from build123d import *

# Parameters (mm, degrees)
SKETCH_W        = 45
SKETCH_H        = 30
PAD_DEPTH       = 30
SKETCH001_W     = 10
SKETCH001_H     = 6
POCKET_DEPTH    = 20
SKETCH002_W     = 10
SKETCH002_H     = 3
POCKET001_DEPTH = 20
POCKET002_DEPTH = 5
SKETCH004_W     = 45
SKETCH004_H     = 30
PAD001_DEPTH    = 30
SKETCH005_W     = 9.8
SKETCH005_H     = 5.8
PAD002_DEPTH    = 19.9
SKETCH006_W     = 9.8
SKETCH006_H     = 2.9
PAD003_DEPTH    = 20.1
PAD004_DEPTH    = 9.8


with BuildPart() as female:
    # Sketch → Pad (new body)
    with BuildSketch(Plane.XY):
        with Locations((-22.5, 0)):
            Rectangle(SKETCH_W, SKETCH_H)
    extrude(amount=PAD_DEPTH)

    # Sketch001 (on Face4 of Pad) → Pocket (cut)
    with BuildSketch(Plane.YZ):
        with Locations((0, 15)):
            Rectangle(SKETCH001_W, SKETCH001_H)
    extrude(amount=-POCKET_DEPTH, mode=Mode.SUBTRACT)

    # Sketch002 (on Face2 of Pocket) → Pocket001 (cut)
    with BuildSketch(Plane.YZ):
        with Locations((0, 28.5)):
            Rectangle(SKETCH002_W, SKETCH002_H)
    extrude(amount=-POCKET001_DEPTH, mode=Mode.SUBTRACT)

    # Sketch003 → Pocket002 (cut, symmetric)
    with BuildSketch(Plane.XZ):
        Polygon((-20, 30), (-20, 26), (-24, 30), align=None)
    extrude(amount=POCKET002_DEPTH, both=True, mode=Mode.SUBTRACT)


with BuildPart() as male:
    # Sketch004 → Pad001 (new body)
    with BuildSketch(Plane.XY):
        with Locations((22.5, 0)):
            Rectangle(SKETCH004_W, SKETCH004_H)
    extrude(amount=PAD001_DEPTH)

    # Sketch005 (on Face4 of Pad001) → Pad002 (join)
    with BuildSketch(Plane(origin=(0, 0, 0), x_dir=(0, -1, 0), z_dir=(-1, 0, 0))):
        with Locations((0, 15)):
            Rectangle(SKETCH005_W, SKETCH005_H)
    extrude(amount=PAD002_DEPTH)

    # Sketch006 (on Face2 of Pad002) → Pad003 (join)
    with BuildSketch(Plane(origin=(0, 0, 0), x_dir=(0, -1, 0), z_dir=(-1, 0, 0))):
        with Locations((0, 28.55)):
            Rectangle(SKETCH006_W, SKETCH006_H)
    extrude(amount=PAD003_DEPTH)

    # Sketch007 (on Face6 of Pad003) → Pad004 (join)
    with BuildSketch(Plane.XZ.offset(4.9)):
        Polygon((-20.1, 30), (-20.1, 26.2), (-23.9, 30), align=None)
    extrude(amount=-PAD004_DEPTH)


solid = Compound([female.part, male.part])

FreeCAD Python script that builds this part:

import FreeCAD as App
import Part
import Sketcher
from FreeCAD import Vector

doc = App.newDocument("Part")
body = doc.addObject("PartDesign::Body", "Body")

# Sketch on XY plane
sketch1 = doc.addObject("Sketcher::SketchObject", "Sketch")
body.addObject(sketch1)
sketch1.AttachmentSupport = (doc.XY_Plane, [""])
sketch1.MapMode = "FlatFace"
sketch1.addGeometry([
    Part.LineSegment(Vector(-45, 15, 0), Vector(-45, -15, 0)),
    Part.LineSegment(Vector(-45, -15, 0), Vector(0, -15, 0)),
    Part.LineSegment(Vector(0, -15, 0), Vector(0, 15, 0)),
    Part.LineSegment(Vector(0, 15, 0), Vector(-45, 15, 0)),
], False)
sketch1.addConstraint([
    Sketcher.Constraint("Coincident", 0, 2, 1, 1),
    Sketcher.Constraint("Coincident", 1, 2, 2, 1),
    Sketcher.Constraint("Coincident", 2, 2, 3, 1),
    Sketcher.Constraint("Coincident", 3, 2, 0, 1),
    Sketcher.Constraint("Vertical", 0),
    Sketcher.Constraint("Horizontal", 1),
    Sketcher.Constraint("Vertical", 2),
    Sketcher.Constraint("Horizontal", 3),
    Sketcher.Constraint("Symmetric", 1, 2, 2, 2, -1, 1),
    Sketcher.Constraint("DistanceX", 1, 1, 1, 2, 45.0),
    Sketcher.Constraint("DistanceY", 0, 2, 0, 1, 30.0),
])
pad1 = doc.addObject("PartDesign::Pad", "Pad")
body.addObject(pad1)
pad1.Profile = sketch1
pad1.Length = 30

# Sketch on YZ plane
sketch2 = doc.addObject("Sketcher::SketchObject", "Sketch001")
body.addObject(sketch2)
sketch2.AttachmentSupport = (doc.YZ_Plane, [""])
sketch2.MapMode = "FlatFace"
sketch2.addGeometry([
    Part.LineSegment(Vector(-5, 18, 0), Vector(-5, 12, 0)),
    Part.LineSegment(Vector(-5, 12, 0), Vector(5, 12, 0)),
    Part.LineSegment(Vector(5, 12, 0), Vector(5, 18, 0)),
    Part.LineSegment(Vector(5, 18, 0), Vector(-5, 18, 0)),
], False)
sketch2.addConstraint([
    Sketcher.Constraint("Coincident", 0, 2, 1, 1),
    Sketcher.Constraint("Coincident", 1, 2, 2, 1),
    Sketcher.Constraint("Coincident", 2, 2, 3, 1),
    Sketcher.Constraint("Coincident", 3, 2, 0, 1),
    Sketcher.Constraint("Vertical", 0),
    Sketcher.Constraint("Horizontal", 1),
    Sketcher.Constraint("Vertical", 2),
    Sketcher.Constraint("Horizontal", 3),
    Sketcher.Constraint("DistanceX", 1, 1, 1, 2, 10.0),
    Sketcher.Constraint("DistanceY", 0, 2, 0, 1, 6.0),
    Sketcher.Constraint("DistanceX", 0, 2, -1, 1, 5.0),
    Sketcher.Constraint("DistanceY", -1, 1, 0, 2, 12.0),
])
pocket1 = doc.addObject("PartDesign::Pocket", "Pocket")
body.addObject(pocket1)
pocket1.Profile = sketch2
pocket1.Length = 20

# Sketch on YZ plane
sketch3 = doc.addObject("Sketcher::SketchObject", "Sketch002")
body.addObject(sketch3)
sketch3.AttachmentSupport = (doc.YZ_Plane, [""])
sketch3.MapMode = "FlatFace"
sketch3.addGeometry([
    Part.LineSegment(Vector(-5, 30, 0), Vector(-5, 27, 0)),
    Part.LineSegment(Vector(-5, 27, 0), Vector(5, 27, 0)),
    Part.LineSegment(Vector(5, 27, 0), Vector(5, 30, 0)),
    Part.LineSegment(Vector(5, 30, 0), Vector(-5, 30, 0)),
], False)
sketch3.addConstraint([
    Sketcher.Constraint("Coincident", 0, 2, 1, 1),
    Sketcher.Constraint("Coincident", 1, 2, 2, 1),
    Sketcher.Constraint("Coincident", 2, 2, 3, 1),
    Sketcher.Constraint("Coincident", 3, 2, 0, 1),
    Sketcher.Constraint("Vertical", 0),
    Sketcher.Constraint("Horizontal", 1),
    Sketcher.Constraint("Vertical", 2),
    Sketcher.Constraint("Horizontal", 3),
    Sketcher.Constraint("DistanceX", 1, 1, 1, 2, 10.0),
    Sketcher.Constraint("DistanceY", 0, 2, 0, 1, 3.0),
    Sketcher.Constraint("DistanceX", 0, 2, -1, 1, 5.0),
    Sketcher.Constraint("DistanceY", -1, 1, 0, 2, 27.0),
])
pocket2 = doc.addObject("PartDesign::Pocket", "Pocket001")
body.addObject(pocket2)
pocket2.Profile = sketch3
pocket2.Length = 20

# Sketch on XZ plane
sketch4 = doc.addObject("Sketcher::SketchObject", "Sketch003")
body.addObject(sketch4)
sketch4.AttachmentSupport = (doc.XZ_Plane, [""])
sketch4.MapMode = "FlatFace"
sketch4.addGeometry([
    Part.LineSegment(Vector(-20, 26, 0), Vector(-20, 30, 0)),
    Part.LineSegment(Vector(-20, 30, 0), Vector(-24, 30, 0)),
    Part.LineSegment(Vector(-24, 30, 0), Vector(-20, 26, 0)),
], False)
sketch4.addConstraint([
    Sketcher.Constraint("Coincident", 0, 2, 1, 1),
    Sketcher.Constraint("Coincident", 1, 2, 2, 1),
    Sketcher.Constraint("Coincident", 2, 2, 0, 1),
    Sketcher.Constraint("Vertical", 0),
    Sketcher.Constraint("Horizontal", 1),
    Sketcher.Constraint("Equal", 1, 0),
    Sketcher.Constraint("DistanceX", 1, 2, 1, 1, 4.0),
    Sketcher.Constraint("DistanceX", 0, 2, -1, 1, 20.0),
    Sketcher.Constraint("DistanceY", -1, 1, 0, 2, 30.0),
])
pocket3 = doc.addObject("PartDesign::Pocket", "Pocket002")
body.addObject(pocket3)
pocket3.Profile = sketch4
pocket3.Length = 10
pocket3.Midplane = True
body2 = doc.addObject("PartDesign::Body", "Body001")

# Sketch on XY plane
sketch5 = doc.addObject("Sketcher::SketchObject", "Sketch004")
body2.addObject(sketch5)
sketch5.AttachmentSupport = (doc.getObject("XY_Plane001"), [""])
sketch5.MapMode = "FlatFace"
sketch5.addGeometry([
    Part.LineSegment(Vector(0, 15, 0), Vector(0, -15, 0)),
    Part.LineSegment(Vector(0, -15, 0), Vector(45, -15, 0)),
    Part.LineSegment(Vector(45, -15, 0), Vector(45, 15, 0)),
    Part.LineSegment(Vector(45, 15, 0), Vector(0, 15, 0)),
], False)
sketch5.addConstraint([
    Sketcher.Constraint("Coincident", 0, 2, 1, 1),
    Sketcher.Constraint("Coincident", 1, 2, 2, 1),
    Sketcher.Constraint("Coincident", 2, 2, 3, 1),
    Sketcher.Constraint("Coincident", 3, 2, 0, 1),
    Sketcher.Constraint("Vertical", 0),
    Sketcher.Constraint("Horizontal", 1),
    Sketcher.Constraint("Vertical", 2),
    Sketcher.Constraint("Horizontal", 3),
    Sketcher.Constraint("Symmetric", 0, 2, 3, 2, -1, 1),
    Sketcher.Constraint("DistanceX", 1, 1, 1, 2, 45.0),
    Sketcher.Constraint("DistanceY", 0, 2, 0, 1, 30.0),
])
pad2 = doc.addObject("PartDesign::Pad", "Pad001")
body2.addObject(pad2)
pad2.Profile = sketch5
pad2.Length = 30

# Sketch on YZ plane
sketch6 = doc.addObject("Sketcher::SketchObject", "Sketch005")
body2.addObject(sketch6)
sketch6.AttachmentSupport = (doc.getObject("YZ_Plane001"), [""])
sketch6.MapMode = "FlatFace"
sketch6.addGeometry([
    Part.LineSegment(Vector(5, 18, 0), Vector(5, 12, 0)),
    Part.LineSegment(Vector(5, 12, 0), Vector(-5, 12, 0)),
    Part.LineSegment(Vector(-5, 12, 0), Vector(-5, 18, 0)),
    Part.LineSegment(Vector(-5, 18, 0), Vector(5, 18, 0)),
], False)
sketch6.addConstraint([
    Sketcher.Constraint("Coincident", 0, 2, 1, 1),
    Sketcher.Constraint("Coincident", 1, 2, 2, 1),
    Sketcher.Constraint("Coincident", 2, 2, 3, 1),
    Sketcher.Constraint("Coincident", 3, 2, 0, 1),
    Sketcher.Constraint("Vertical", 0),
    Sketcher.Constraint("Horizontal", 1),
    Sketcher.Constraint("Vertical", 2),
    Sketcher.Constraint("Horizontal", 3),
    Sketcher.Constraint("DistanceX", 1, 2, 1, 1, 9.8),
    Sketcher.Constraint("DistanceY", 0, 2, 0, 1, 5.8),
    Sketcher.Constraint("DistanceX", -1, 1, 0, 2, 4.9),
    Sketcher.Constraint("DistanceY", -1, 1, 0, 2, 12.1),
])
pad3 = doc.addObject("PartDesign::Pad", "Pad002")
body2.addObject(pad3)
pad3.Profile = sketch6
pad3.Length = 19.9
pad3.Reversed = True

# Sketch on YZ plane
sketch7 = doc.addObject("Sketcher::SketchObject", "Sketch006")
body2.addObject(sketch7)
sketch7.AttachmentSupport = (doc.getObject("YZ_Plane001"), [""])
sketch7.MapMode = "FlatFace"
sketch7.addGeometry([
    Part.LineSegment(Vector(4.9, 30, 0), Vector(4.9, 27.1, 0)),
    Part.LineSegment(Vector(4.9, 27.1, 0), Vector(-4.9, 27.1, 0)),
    Part.LineSegment(Vector(-4.9, 27.1, 0), Vector(-4.9, 30, 0)),
    Part.LineSegment(Vector(-4.9, 30, 0), Vector(4.9, 30, 0)),
], False)
sketch7.addConstraint([
    Sketcher.Constraint("Coincident", 0, 2, 1, 1),
    Sketcher.Constraint("Coincident", 1, 2, 2, 1),
    Sketcher.Constraint("Coincident", 2, 2, 3, 1),
    Sketcher.Constraint("Coincident", 3, 2, 0, 1),
    Sketcher.Constraint("Vertical", 0),
    Sketcher.Constraint("Horizontal", 1),
    Sketcher.Constraint("Vertical", 2),
    Sketcher.Constraint("Horizontal", 3),
    Sketcher.Constraint("DistanceX", 1, 2, 1, 1, 9.8),
    Sketcher.Constraint("DistanceY", 0, 2, 0, 1, 2.9),
    Sketcher.Constraint("DistanceY", -1, 1, 2, 2, 30.0),
    Sketcher.Constraint("DistanceX", -1, 1, 0, 2, 4.9),
])
pad4 = doc.addObject("PartDesign::Pad", "Pad003")
body2.addObject(pad4)
pad4.Profile = sketch7
pad4.Length = 20.1
pad4.Reversed = True

# Sketch on XZ plane
sketch8 = doc.addObject("Sketcher::SketchObject", "Sketch007")
body2.addObject(sketch8)
sketch8.AttachmentSupport = (doc.getObject("XZ_Plane001"), [""])
sketch8.MapMode = "FlatFace"
sketch8.AttachmentOffset = App.Placement(Vector(0, 0, 4.9), App.Rotation())
sketch8.addGeometry([
    Part.LineSegment(Vector(-20.1, 26.2, 0), Vector(-20.1, 30, 0)),
    Part.LineSegment(Vector(-20.1, 30, 0), Vector(-23.9, 30, 0)),
    Part.LineSegment(Vector(-23.9, 30, 0), Vector(-20.1, 26.2, 0)),
], False)
sketch8.addConstraint([
    Sketcher.Constraint("Coincident", 0, 2, 1, 1),
    Sketcher.Constraint("Coincident", 1, 2, 2, 1),
    Sketcher.Constraint("Coincident", 2, 2, 0, 1),
    Sketcher.Constraint("Vertical", 0),
    Sketcher.Constraint("Horizontal", 1),
    Sketcher.Constraint("Equal", 1, 0),
    Sketcher.Constraint("DistanceX", 1, 2, 1, 1, 3.8),
    Sketcher.Constraint("DistanceY", -1, 1, 0, 2, 30.0),
    Sketcher.Constraint("DistanceX", 0, 2, -1, 1, 20.1),
])
pad5 = doc.addObject("PartDesign::Pad", "Pad004")
body2.addObject(pad5)
pad5.Profile = sketch8
pad5.Length = 9.8
pad5.Reversed = True

doc.recompute()
